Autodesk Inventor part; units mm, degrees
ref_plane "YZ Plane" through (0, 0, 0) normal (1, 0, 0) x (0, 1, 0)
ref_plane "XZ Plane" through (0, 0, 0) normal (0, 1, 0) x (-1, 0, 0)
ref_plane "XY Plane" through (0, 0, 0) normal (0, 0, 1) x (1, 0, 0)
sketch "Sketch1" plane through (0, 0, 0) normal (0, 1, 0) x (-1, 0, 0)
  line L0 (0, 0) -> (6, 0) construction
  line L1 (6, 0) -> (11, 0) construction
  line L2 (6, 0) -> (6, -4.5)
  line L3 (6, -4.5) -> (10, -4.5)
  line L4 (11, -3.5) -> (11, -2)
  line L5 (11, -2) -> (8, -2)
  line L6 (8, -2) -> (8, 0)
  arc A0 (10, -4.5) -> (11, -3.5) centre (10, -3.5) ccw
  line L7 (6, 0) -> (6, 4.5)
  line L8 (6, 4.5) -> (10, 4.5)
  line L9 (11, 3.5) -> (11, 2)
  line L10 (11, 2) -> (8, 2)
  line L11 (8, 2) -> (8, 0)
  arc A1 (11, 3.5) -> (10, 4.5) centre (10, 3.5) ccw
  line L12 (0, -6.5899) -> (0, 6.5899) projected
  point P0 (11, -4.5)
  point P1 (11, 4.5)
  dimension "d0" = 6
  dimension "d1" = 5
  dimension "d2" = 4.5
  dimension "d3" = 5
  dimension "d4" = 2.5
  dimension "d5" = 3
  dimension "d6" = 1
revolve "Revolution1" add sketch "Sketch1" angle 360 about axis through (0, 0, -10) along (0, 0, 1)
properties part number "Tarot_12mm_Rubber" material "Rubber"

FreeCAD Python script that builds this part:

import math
import FreeCAD as App
import Part
import Sketcher

doc = App.newDocument("Part")
body = doc.addObject("PartDesign::Body", "Body")

# Sketch on XZ plane
sketch1 = body.newObject("Sketcher::SketchObject", "Sketch")
sketch1.AttachmentSupport = (doc.getObject("XZ_Plane"), [""])
sketch1.MapMode = "FlatFace"
sketch1.addGeometry(Part.LineSegment(App.Vector(-6, 4.5, 0), App.Vector(-6, -4.5, 0)), False)
sketch1.addGeometry(Part.LineSegment(App.Vector(-6, -4.5, 0), App.Vector(-10, -4.5, 0)), False)
sketch1.addGeometry(Part.ArcOfCircle(Part.Circle(App.Vector(-10, -3.5, 0), App.Vector(0, 0, 1), 1), math.radians(180), math.radians(270)), False)
sketch1.addGeometry(Part.LineSegment(App.Vector(-11, -3.5, 0), App.Vector(-11, -2, 0)), False)
sketch1.addGeometry(Part.LineSegment(App.Vector(-11, -2, 0), App.Vector(-8, -2, 0)), False)
sketch1.addGeometry(Part.LineSegment(App.Vector(-8, -2, 0), App.Vector(-8, 2, 0)), False)
sketch1.addGeometry(Part.LineSegment(App.Vector(-8, 2, 0), App.Vector(-11, 2, 0)), False)
sketch1.addGeometry(Part.LineSegment(App.Vector(-11, 2, 0), App.Vector(-11, 3.5, 0)), False)
sketch1.addGeometry(Part.ArcOfCircle(Part.Circle(App.Vector(-10, 3.5, 0), App.Vector(0, 0, 1), 1), math.radians(90), math.radians(180)), False)
sketch1.addGeometry(Part.LineSegment(App.Vector(-10, 4.5, 0), App.Vector(-6, 4.5, 0)), False)
sketch1.addConstraint(Sketcher.Constraint("Coincident", 0, 2, 1, 1))
sketch1.addConstraint(Sketcher.Constraint("Tangent", 1, 2, 2, 2))
sketch1.addConstraint(Sketcher.Constraint("Tangent", 2, 1, 3, 1))
sketch1.addConstraint(Sketcher.Constraint("Coincident", 3, 2, 4, 1))
sketch1.addConstraint(Sketcher.Constraint("Coincident", 4, 2, 5, 1))
sketch1.addConstraint(Sketcher.Constraint("Coincident", 5, 2, 6, 1))
sketch1.addConstraint(Sketcher.Constraint("Coincident", 6, 2, 7, 1))
sketch1.addConstraint(Sketcher.Constraint("Tangent", 7, 2, 8, 2))
sketch1.addConstraint(Sketcher.Constraint("Tangent", 8, 1, 9, 1))
sketch1.addConstraint(Sketcher.Constraint("Coincident", 9, 2, 0, 1))
sketch1.addConstraint(Sketcher.Constraint("Vertical", 0))
sketch1.addConstraint(Sketcher.Constraint("Horizontal", 1))
sketch1.addConstraint(Sketcher.Constraint("Vertical", 3))
sketch1.addConstraint(Sketcher.Constraint("Horizontal", 4))
sketch1.addConstraint(Sketcher.Constraint("Vertical", 5))
sketch1.addConstraint(Sketcher.Constraint("Horizontal", 6))
sketch1.addConstraint(Sketcher.Constraint("Vertical", 7))
sketch1.addConstraint(Sketcher.Constraint("Horizontal", 9))
sketch1.addConstraint(Sketcher.Constraint("Equal", 2, 8))
sketch1.addConstraint(Sketcher.Constraint("Symmetric", 2, 3, 8, 3, -1))
sketch1.addConstraint(Sketcher.Constraint("Equal", 9, 5))
sketch1.addConstraint(Sketcher.Constraint("Equal", 3, 7))
sketch1.addConstraint(Sketcher.Constraint("Radius", 2, 1.0))
sketch1.addConstraint(Sketcher.Constraint("DistanceX", 4, 1, 4, 2, 3.0))
sketch1.addConstraint(Sketcher.Constraint("DistanceX", 0, 2, -1, 1, 6.0))
sketch1.addConstraint(Sketcher.Constraint("DistanceX", 2, 1, 0, 2, 5.0))
sketch1.addConstraint(Sketcher.Constraint("DistanceY", 0, 2, -1, 1, 4.5))
revolution = body.newObject("PartDesign::Revolution", "Revolution")
revolution.Profile = sketch1
revolution.ReferenceAxis = (sketch1, ["V_Axis"])
revolution.Angle = 360

doc.recompute()
